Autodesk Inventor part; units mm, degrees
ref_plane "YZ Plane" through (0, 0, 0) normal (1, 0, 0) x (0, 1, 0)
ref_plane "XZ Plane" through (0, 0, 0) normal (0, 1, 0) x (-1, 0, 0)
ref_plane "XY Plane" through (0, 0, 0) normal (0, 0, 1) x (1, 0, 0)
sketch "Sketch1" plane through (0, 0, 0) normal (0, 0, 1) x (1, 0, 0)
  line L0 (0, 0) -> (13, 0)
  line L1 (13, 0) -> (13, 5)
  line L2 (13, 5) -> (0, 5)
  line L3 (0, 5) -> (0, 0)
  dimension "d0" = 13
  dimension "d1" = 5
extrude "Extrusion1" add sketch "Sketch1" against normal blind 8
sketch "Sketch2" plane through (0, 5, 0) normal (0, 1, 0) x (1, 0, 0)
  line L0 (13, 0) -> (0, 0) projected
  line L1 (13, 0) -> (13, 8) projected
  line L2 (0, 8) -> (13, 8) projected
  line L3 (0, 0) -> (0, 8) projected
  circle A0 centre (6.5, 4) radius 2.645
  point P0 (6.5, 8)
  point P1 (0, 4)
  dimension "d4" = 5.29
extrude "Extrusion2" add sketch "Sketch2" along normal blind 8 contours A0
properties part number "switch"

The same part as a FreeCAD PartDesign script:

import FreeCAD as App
import Part
import Sketcher

V = App.Vector
Q = App.Units.Quantity

doc = App.newDocument("Part")
body = doc.addObject("PartDesign::Body", "Body")

# Sketch on XY plane
sketch1 = body.newObject("Sketcher::SketchObject", "Sketch")
sketch1.AttachmentSupport = (doc.getObject("XY_Plane"), [""])
sketch1.MapMode = "FlatFace"
sketch1.addGeometry([
    Part.LineSegment(V(0, 5, 0), V(0, 0, 0)),
    Part.LineSegment(V(0, 0, 0), V(13, 0, 0)),
    Part.LineSegment(V(13, 0, 0), V(13, 5, 0)),
    Part.LineSegment(V(13, 5, 0), V(0, 5, 0)),
], False)
sketch1.addConstraint([
    Sketcher.Constraint("Coincident", 0, 2, 1, 1),
    Sketcher.Constraint("Coincident", 1, 2, 2, 1),
    Sketcher.Constraint("Coincident", 2, 2, 3, 1),
    Sketcher.Constraint("Coincident", 3, 2, 0, 1),
    Sketcher.Constraint("Vertical", 0),
    Sketcher.Constraint("Horizontal", 1),
    Sketcher.Constraint("Vertical", 2),
    Sketcher.Constraint("Horizontal", 3),
    Sketcher.Constraint("Coincident", 0, 2, -1, 1),
    Sketcher.Constraint("DistanceX", 1, 1, 1, 2, Q("13 mm")),
    Sketcher.Constraint("DistanceY", 0, 2, 0, 1, Q("5 mm")),
])
pad1 = body.newObject("PartDesign::Pad", "Pad")
pad1.Profile = sketch1
pad1.Length = 8
pad1.Reversed = True

# Sketch on XZ plane
sketch2 = body.newObject("Sketcher::SketchObject", "Sketch001")
sketch2.AttachmentSupport = (doc.getObject("XZ_Plane"), [""])
sketch2.MapMode = "FlatFace"
sketch2.AttachmentOffset = App.Placement(V(0, 0, -5), App.Rotation())
sketch2.addGeometry(Part.Circle(V(6.5, -4, 0), V(0, 0, 1), 2.645), False)
sketch2.addConstraint([
    Sketcher.Constraint("Diameter", 0, Q("5.29 mm")),
    Sketcher.Constraint("DistanceY", 0, 3, -1, 1, Q("4 mm")),
    Sketcher.Constraint("DistanceX", -1, 1, 0, 3, Q("6.5 mm")),
])
pad2 = body.newObject("PartDesign::Pad", "Pad001")
pad2.Profile = sketch2
pad2.Length = 8
pad2.Reversed = True

doc.recompute()
